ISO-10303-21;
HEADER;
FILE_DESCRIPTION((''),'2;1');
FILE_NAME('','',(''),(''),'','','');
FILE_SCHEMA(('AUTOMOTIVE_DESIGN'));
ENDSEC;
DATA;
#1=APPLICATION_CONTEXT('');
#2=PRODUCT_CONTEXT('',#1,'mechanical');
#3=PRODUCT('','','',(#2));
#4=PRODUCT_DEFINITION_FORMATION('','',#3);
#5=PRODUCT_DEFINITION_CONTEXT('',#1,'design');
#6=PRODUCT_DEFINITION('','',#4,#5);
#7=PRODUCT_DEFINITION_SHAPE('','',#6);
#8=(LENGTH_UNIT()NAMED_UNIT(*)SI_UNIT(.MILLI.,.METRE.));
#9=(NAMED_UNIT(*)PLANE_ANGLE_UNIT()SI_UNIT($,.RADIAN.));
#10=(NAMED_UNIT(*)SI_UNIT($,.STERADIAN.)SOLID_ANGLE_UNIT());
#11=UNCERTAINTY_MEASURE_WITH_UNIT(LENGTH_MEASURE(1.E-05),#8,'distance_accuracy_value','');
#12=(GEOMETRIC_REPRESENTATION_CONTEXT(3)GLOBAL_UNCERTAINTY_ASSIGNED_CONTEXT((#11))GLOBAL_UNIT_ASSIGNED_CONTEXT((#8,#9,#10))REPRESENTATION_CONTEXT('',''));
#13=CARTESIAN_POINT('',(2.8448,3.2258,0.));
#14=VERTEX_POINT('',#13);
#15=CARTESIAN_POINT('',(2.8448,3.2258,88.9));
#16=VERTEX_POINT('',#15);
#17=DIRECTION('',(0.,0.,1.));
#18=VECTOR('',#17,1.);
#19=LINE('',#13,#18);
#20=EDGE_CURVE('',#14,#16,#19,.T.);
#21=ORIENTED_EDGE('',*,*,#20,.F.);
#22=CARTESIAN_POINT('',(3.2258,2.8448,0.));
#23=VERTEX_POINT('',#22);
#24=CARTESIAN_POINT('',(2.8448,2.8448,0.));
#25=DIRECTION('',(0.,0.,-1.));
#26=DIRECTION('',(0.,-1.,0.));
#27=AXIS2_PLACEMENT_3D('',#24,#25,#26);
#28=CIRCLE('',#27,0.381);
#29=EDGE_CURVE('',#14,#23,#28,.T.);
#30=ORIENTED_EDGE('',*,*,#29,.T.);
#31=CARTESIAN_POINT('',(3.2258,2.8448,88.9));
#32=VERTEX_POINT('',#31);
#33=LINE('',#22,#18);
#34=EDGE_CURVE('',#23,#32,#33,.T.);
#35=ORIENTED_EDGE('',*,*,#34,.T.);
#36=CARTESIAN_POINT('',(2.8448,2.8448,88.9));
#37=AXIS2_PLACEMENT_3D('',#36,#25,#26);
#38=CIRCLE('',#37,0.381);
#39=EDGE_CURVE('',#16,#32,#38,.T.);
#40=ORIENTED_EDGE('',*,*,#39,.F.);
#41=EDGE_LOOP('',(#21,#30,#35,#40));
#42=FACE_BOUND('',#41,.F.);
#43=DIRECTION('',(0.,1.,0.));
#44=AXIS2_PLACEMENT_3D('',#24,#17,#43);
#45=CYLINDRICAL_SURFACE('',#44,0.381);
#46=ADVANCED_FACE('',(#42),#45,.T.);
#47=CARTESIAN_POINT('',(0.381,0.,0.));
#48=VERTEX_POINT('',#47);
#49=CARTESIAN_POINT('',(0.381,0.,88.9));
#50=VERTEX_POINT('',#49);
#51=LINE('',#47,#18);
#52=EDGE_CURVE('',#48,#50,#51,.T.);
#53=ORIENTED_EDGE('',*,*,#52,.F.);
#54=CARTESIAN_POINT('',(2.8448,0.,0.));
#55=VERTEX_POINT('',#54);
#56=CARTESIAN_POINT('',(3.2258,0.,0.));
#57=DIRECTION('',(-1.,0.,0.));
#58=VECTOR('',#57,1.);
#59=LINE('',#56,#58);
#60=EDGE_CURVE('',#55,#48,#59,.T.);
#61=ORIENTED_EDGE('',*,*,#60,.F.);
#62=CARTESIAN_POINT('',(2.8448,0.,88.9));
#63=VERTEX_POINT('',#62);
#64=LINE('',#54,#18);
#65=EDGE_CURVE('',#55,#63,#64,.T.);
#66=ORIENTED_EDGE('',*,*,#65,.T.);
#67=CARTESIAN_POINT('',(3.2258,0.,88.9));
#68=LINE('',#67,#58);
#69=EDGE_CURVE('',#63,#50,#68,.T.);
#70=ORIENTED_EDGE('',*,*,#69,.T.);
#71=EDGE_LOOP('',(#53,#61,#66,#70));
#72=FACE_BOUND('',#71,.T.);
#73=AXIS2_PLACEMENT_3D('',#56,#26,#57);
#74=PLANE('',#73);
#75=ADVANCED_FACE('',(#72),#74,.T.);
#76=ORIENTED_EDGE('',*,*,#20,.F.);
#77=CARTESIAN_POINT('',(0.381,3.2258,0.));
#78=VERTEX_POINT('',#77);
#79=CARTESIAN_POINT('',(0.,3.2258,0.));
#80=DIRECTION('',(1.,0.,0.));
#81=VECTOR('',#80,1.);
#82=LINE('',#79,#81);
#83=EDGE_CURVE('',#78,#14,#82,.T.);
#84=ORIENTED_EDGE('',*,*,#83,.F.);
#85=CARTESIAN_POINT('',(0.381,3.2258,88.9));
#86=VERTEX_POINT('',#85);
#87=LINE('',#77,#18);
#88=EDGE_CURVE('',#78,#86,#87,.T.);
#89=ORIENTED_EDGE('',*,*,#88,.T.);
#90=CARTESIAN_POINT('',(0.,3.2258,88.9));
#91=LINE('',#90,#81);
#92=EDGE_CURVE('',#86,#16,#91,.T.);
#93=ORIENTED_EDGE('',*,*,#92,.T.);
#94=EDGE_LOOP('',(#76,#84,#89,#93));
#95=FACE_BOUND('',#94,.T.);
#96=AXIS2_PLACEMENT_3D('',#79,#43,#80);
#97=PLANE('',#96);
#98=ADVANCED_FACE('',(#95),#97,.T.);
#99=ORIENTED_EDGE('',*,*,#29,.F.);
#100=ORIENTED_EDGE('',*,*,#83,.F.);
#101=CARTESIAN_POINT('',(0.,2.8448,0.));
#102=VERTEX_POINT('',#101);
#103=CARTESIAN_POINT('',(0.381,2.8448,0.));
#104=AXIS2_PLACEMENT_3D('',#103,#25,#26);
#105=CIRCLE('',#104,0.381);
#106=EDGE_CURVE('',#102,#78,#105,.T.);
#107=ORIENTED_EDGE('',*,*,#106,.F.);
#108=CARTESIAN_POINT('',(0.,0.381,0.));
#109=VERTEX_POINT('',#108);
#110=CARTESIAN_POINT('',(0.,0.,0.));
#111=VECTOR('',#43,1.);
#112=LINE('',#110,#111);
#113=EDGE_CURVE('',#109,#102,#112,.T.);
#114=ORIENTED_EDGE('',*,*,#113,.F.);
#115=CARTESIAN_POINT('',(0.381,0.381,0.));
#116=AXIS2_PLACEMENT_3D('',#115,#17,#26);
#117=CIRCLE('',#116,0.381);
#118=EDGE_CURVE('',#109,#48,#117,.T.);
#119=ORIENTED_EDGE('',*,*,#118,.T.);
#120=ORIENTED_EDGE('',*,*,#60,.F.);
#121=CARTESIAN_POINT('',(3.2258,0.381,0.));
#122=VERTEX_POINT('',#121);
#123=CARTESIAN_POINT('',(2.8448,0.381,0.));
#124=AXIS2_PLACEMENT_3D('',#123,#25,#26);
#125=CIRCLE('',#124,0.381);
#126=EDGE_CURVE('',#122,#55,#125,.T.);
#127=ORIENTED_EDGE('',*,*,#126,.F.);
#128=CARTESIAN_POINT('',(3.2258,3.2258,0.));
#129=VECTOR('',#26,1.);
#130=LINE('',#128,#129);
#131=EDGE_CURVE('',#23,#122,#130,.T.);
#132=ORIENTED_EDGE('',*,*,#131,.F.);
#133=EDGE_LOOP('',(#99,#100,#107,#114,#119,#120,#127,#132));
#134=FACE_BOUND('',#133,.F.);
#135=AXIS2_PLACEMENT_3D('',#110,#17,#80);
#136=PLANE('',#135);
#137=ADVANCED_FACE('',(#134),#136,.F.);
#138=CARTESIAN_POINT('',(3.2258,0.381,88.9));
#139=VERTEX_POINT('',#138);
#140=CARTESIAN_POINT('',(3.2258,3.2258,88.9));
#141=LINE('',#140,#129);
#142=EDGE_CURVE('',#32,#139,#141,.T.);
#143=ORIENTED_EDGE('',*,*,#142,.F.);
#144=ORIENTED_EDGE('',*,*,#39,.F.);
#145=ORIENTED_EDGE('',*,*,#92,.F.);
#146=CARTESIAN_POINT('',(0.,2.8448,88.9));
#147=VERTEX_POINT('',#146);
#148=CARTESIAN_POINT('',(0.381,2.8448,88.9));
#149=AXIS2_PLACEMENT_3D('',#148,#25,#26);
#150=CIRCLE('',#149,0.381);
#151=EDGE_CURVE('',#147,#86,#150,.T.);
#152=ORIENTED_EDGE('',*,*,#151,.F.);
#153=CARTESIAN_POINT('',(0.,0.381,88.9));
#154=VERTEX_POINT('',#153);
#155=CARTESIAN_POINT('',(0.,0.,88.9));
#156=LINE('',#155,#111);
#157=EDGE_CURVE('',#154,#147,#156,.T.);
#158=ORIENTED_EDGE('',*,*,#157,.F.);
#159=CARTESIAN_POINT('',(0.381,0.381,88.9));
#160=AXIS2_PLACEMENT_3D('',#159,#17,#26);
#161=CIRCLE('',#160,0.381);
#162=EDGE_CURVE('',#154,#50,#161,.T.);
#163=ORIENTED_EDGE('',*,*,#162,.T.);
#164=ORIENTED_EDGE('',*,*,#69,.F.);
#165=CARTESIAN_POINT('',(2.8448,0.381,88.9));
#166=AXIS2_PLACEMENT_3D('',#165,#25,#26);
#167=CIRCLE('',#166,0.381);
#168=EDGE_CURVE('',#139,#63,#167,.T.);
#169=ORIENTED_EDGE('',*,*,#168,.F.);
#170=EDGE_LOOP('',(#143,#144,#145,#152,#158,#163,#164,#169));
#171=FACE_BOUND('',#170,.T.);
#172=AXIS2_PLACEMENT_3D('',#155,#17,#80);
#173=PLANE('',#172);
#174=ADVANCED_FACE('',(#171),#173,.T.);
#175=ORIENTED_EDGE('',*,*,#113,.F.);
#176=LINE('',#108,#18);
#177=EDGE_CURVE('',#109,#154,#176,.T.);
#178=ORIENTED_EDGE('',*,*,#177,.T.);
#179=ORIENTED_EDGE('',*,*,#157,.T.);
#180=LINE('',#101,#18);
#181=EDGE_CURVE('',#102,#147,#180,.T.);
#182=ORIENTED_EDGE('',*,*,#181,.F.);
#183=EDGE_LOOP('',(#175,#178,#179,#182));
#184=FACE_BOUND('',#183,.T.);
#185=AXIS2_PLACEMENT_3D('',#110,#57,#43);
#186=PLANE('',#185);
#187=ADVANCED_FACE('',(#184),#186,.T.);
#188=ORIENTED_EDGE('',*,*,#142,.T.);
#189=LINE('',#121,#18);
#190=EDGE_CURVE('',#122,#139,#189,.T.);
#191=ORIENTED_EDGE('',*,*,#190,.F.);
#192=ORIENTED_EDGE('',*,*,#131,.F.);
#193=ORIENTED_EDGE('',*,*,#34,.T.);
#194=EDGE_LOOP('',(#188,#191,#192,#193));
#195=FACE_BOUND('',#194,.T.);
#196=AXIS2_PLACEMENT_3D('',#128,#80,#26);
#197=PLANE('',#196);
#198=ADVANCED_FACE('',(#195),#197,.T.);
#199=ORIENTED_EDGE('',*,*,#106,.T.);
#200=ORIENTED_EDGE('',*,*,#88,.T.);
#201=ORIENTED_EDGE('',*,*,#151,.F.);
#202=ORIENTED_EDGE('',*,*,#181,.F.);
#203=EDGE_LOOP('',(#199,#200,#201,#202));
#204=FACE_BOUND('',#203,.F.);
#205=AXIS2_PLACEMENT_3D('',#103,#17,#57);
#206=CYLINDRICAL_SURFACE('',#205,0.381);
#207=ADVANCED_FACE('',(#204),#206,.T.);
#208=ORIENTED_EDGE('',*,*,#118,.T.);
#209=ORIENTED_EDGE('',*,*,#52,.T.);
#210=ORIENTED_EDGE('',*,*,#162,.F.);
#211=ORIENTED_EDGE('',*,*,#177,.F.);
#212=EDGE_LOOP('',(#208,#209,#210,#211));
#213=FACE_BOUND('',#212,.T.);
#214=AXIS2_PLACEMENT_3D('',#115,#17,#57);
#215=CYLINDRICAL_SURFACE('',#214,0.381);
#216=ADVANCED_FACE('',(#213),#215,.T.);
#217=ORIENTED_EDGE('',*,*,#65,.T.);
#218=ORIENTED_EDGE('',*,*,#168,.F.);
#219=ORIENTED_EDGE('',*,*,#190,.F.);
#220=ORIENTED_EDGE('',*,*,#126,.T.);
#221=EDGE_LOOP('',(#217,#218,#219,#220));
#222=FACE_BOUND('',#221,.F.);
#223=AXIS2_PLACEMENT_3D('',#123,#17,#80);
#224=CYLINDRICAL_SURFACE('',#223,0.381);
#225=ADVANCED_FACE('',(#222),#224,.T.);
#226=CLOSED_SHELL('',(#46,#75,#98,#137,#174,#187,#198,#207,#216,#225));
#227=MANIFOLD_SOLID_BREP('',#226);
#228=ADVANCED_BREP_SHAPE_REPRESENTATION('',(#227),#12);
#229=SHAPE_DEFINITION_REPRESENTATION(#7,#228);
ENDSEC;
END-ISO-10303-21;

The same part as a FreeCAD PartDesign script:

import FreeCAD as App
import Part
import Sketcher
from FreeCAD import Vector
Q = App.Units.Quantity


def edges_at(feature, points):
    """Names of the edges that pass closest to the given points."""
    edges = feature.Shape.Edges
    near = lambda p: min(range(len(edges)), key=lambda i: edges[i].distToShape(Part.Vertex(*p))[0])
    return sorted({f"Edge{near(p) + 1}" for p in points})

doc = App.newDocument("Part")
body = doc.addObject("PartDesign::Body", "Body")

# Sketch on XY plane
sketch1 = body.newObject("Sketcher::SketchObject", "Sketch")
sketch1.AttachmentSupport = (doc.getObject("XY_Plane"), [""])
sketch1.MapMode = "FlatFace"
sketch1.addGeometry([
    Part.LineSegment(Vector(0, 3.2, 0), Vector(0, 0, 0)),
    Part.LineSegment(Vector(0, 0, 0), Vector(3.2, 0, 0)),
    Part.LineSegment(Vector(3.2, 0, 0), Vector(3.2, 3.2, 0)),
    Part.LineSegment(Vector(3.2, 3.2, 0), Vector(0, 3.2, 0)),
], False)
sketch1.addConstraint([
    Sketcher.Constraint("Coincident", 0, 2, 1, 1),
    Sketcher.Constraint("Coincident", 1, 2, 2, 1),
    Sketcher.Constraint("Coincident", 2, 2, 3, 1),
    Sketcher.Constraint("Coincident", 3, 2, 0, 1),
    Sketcher.Constraint("Vertical", 0),
    Sketcher.Constraint("Horizontal", 1),
    Sketcher.Constraint("Vertical", 2),
    Sketcher.Constraint("Horizontal", 3),
    Sketcher.Constraint("Coincident", 0, 2, -1, 1),
    Sketcher.Constraint("Equal", 3, 0),
    Sketcher.Constraint("DistanceX", 1, 1, 1, 2, Q("0.127 in")),
])
pad1 = body.newObject("PartDesign::Pad", "Pad")
pad1.Profile = sketch1
pad1.Length = Q("3.5 in")
doc.recompute()

fillet = body.newObject("PartDesign::Fillet", "Fillet")
fillet.Base = (pad1, edges_at(pad1, [
    (3.226, 3.226, 44.45),
    (3.226, 0, 44.45),
    (0, 3.226, 44.45),
    (0, 0, 44.45),
]))
fillet.Radius = Q("0.015 in")

doc.recompute()
